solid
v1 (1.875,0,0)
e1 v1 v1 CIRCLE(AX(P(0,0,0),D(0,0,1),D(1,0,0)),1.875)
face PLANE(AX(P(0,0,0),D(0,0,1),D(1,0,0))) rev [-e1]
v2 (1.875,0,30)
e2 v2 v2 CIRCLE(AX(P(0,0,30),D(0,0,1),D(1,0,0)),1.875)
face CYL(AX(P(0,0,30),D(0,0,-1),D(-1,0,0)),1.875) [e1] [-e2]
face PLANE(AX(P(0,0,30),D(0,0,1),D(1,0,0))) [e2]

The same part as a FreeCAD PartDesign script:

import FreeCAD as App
import Part
import Sketcher
from FreeCAD import Vector
Q = App.Units.Quantity

doc = App.newDocument("Part")
body = doc.addObject("PartDesign::Body", "Body")

sketch1 = body.newObject("Sketcher::SketchObject", "Sketch")
sketch1.AttachmentSupport = (doc.getObject("XY_Plane"), [""])
sketch1.MapMode = "FlatFace"
sketch1.addGeometry(Part.Circle(Vector(0, 0, 0), Vector(0, 0, 1), 1.9), False)
sketch1.addConstraint(Sketcher.Constraint("Coincident", 0, 3, -1, 1))
sketch1.addConstraint(Sketcher.Constraint("Diameter", 0, Q("3.75 mm")))
pad1 = body.newObject("PartDesign::Pad", "Pad")
pad1.Profile = sketch1
pad1.Length = 30

doc.recompute()
